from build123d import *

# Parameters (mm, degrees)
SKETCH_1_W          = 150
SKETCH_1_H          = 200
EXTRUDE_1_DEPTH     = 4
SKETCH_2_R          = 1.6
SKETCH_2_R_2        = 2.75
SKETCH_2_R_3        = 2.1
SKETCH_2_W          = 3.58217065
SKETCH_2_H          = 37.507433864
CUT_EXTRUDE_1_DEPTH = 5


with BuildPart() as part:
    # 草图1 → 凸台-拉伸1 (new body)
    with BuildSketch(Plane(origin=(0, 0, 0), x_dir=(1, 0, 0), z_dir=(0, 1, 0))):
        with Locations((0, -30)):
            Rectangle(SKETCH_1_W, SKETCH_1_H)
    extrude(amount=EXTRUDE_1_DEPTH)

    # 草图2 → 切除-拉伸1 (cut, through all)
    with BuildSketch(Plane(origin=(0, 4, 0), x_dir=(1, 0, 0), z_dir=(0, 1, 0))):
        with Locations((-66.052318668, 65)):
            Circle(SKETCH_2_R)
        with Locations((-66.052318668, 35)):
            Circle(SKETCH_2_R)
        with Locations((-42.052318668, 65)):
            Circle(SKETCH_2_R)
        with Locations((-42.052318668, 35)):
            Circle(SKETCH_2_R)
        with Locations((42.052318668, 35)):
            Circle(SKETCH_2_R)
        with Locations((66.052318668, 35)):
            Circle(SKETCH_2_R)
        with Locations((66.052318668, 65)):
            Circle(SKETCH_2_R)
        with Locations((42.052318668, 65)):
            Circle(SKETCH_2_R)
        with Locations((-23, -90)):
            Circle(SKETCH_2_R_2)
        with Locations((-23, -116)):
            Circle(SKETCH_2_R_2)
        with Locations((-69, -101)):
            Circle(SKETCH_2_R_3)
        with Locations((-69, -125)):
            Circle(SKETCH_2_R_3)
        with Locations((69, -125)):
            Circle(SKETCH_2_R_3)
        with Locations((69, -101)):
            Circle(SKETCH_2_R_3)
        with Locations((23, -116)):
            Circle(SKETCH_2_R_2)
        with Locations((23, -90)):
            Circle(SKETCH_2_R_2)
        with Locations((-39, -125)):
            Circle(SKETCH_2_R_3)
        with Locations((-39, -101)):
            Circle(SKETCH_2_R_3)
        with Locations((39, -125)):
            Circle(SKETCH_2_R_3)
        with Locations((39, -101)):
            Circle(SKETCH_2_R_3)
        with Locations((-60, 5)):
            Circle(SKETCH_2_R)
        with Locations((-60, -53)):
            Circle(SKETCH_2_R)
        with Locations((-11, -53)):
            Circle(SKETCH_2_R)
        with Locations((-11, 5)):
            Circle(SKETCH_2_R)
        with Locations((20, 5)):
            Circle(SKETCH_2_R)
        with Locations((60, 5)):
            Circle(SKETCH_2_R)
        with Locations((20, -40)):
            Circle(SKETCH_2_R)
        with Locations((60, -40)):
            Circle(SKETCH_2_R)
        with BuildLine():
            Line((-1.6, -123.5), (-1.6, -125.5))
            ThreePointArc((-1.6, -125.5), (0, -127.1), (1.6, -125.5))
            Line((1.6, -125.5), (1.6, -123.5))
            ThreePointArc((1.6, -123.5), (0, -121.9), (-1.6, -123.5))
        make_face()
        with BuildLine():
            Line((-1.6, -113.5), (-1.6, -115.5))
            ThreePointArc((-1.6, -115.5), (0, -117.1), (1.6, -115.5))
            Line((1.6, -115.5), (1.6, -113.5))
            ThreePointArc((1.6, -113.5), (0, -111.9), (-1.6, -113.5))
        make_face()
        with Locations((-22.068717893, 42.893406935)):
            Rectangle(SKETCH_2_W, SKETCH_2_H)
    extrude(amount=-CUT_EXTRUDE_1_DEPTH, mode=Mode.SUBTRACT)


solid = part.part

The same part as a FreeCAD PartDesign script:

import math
import FreeCAD as App
import Part
import Sketcher

V = App.Vector


def add_polygon(sketch, points):
    """Adds a closed chain of lines whose ends are joined by coincident constraints."""
    first, n = sketch.GeometryCount, len(points)
    for a, b in zip(points, points[1:] + points[:1]):
        sketch.addGeometry(Part.LineSegment(App.Vector(*a, 0), App.Vector(*b, 0)), False)
    for i in range(n):
        sketch.addConstraint(Sketcher.Constraint("Coincident", first + i, 2, first + (i + 1) % n, 1))

doc = App.newDocument("Part")
params = doc.addObject("Spreadsheet::Sheet", "Params")
for row, (alias, value) in enumerate([
    ("sketch1_width", "150 mm"),
    ("sketch1_height", "200 mm"),
    ("pad1_length", "4 mm"),
    ("sketch2_diameter", "3.2 mm"),
    ("sketch2_diameter2", "5.5 mm"),
    ("sketch2_diameter3", "4.2 mm"),
    ("sketch2_height", "2 mm"),
], start=1):
    params.set(f"A{row}", alias)
    params.set(f"B{row}", "=" + value)
    params.setAlias(f"B{row}", alias)

body = doc.addObject("PartDesign::Body", "Body")

sketch1 = body.newObject("Sketcher::SketchObject", "Sketch")
sketch1.AttachmentSupport = (doc.getObject("XZ_Plane"), [""])
sketch1.MapMode = "FlatFace"
add_polygon(sketch1, [(-75, -70), (-75, 130), (75, 130), (75, -70)])
sketch1.addConstraint(Sketcher.Constraint("Vertical", 0))
sketch1.addConstraint(Sketcher.Constraint("Horizontal", 1))
sketch1.addConstraint(Sketcher.Constraint("Vertical", 2))
sketch1.addConstraint(Sketcher.Constraint("Horizontal", 3))
sketch1.addConstraint(Sketcher.Constraint("DistanceX", 1, 1, 1, 2, 150.0))
sketch1.addConstraint(Sketcher.Constraint("DistanceY", 0, 1, 0, 2, 200.0))
sketch1.addConstraint(Sketcher.Constraint("DistanceX", 0, 2, -1, 1, 75.0))
sketch1.addConstraint(Sketcher.Constraint("DistanceY", -1, 1, 0, 2, 130.0))
sketch1.setExpression("Constraints[8]", "Params.sketch1_width")
sketch1.setExpression("Constraints[9]", "Params.sketch1_height")
pad1 = body.newObject("PartDesign::Pad", "Pad")
pad1.Profile = sketch1
pad1.setExpression("Length", "Params.pad1_length")
pad1.Reversed = True

sketch2 = body.newObject("Sketcher::SketchObject", "Sketch001")
sketch2.AttachmentSupport = (doc.getObject("XZ_Plane"), [""])
sketch2.MapMode = "FlatFace"
sketch2.AttachmentOffset = App.Placement(V(0, 0, -4), App.Rotation())
sketch2.addGeometry(Part.Circle(V(-66.052319, -65, 0), V(0, 0, 1), 1.6), False)
sketch2.addGeometry(Part.Circle(V(-66.052319, -35, 0), V(0, 0, 1), 1.6), False)
sketch2.addGeometry(Part.Circle(V(-42.052319, -65, 0), V(0, 0, 1), 1.6), False)
sketch2.addGeometry(Part.Circle(V(-42.052319, -35, 0), V(0, 0, 1), 1.6), False)
sketch2.addGeometry(Part.Circle(V(42.052319, -35, 0), V(0, 0, 1), 1.6), False)
sketch2.addGeometry(Part.Circle(V(66.052319, -35, 0), V(0, 0, 1), 1.6), False)
sketch2.addGeometry(Part.Circle(V(66.052319, -65, 0), V(0, 0, 1), 1.6), False)
sketch2.addGeometry(Part.Circle(V(42.052319, -65, 0), V(0, 0, 1), 1.6), False)
sketch2.addGeometry(Part.Circle(V(-23, 90, 0), V(0, 0, 1), 2.75), False)
sketch2.addGeometry(Part.Circle(V(-23, 116, 0), V(0, 0, 1), 2.75), False)
sketch2.addGeometry(Part.Circle(V(-69, 101, 0), V(0, 0, 1), 2.1), False)
sketch2.addGeometry(Part.Circle(V(-69, 125, 0), V(0, 0, 1), 2.1), False)
sketch2.addGeometry(Part.Circle(V(69, 125, 0), V(0, 0, 1), 2.1), False)
sketch2.addGeometry(Part.Circle(V(69, 101, 0), V(0, 0, 1), 2.1), False)
sketch2.addGeometry(Part.Circle(V(23, 116, 0), V(0, 0, 1), 2.75), False)
sketch2.addGeometry(Part.Circle(V(23, 90, 0), V(0, 0, 1), 2.75), False)
sketch2.addGeometry(Part.Circle(V(-39, 125, 0), V(0, 0, 1), 2.1), False)
sketch2.addGeometry(Part.Circle(V(-39, 101, 0), V(0, 0, 1), 2.1), False)
sketch2.addGeometry(Part.Circle(V(39, 125, 0), V(0, 0, 1), 2.1), False)
sketch2.addGeometry(Part.Circle(V(39, 101, 0), V(0, 0, 1), 2.1), False)
sketch2.addGeometry(Part.Circle(V(-60, -5, 0), V(0, 0, 1), 1.6), False)
sketch2.addGeometry(Part.Circle(V(-60, 53, 0), V(0, 0, 1), 1.6), False)
sketch2.addGeometry(Part.Circle(V(-11, 53, 0), V(0, 0, 1), 1.6), False)
sketch2.addGeometry(Part.Circle(V(-11, -5, 0), V(0, 0, 1), 1.6), False)
sketch2.addGeometry(Part.Circle(V(20, -5, 0), V(0, 0, 1), 1.6), False)
sketch2.addGeometry(Part.Circle(V(60, -5, 0), V(0, 0, 1), 1.6), False)
sketch2.addGeometry(Part.Circle(V(20, 40, 0), V(0, 0, 1), 1.6), False)
sketch2.addGeometry(Part.Circle(V(60, 40, 0), V(0, 0, 1), 1.6), False)
sketch2.addGeometry(Part.LineSegment(V(-1.6, 123.5, 0), V(-1.6, 125.5, 0)), False)
sketch2.addGeometry(Part.ArcOfCircle(Part.Circle(V(0, 125.5, 0), V(0, 0, 1), 1.6), math.radians(0), math.radians(180)), False)
sketch2.addGeometry(Part.LineSegment(V(1.6, 125.5, 0), V(1.6, 123.5, 0)), False)
sketch2.addGeometry(Part.ArcOfCircle(Part.Circle(V(0, 123.5, 0), V(0, 0, 1), 1.6), math.radians(180), math.radians(360)), False)
sketch2.addGeometry(Part.LineSegment(V(-1.6, 113.5, 0), V(-1.6, 115.5, 0)), False)
sketch2.addGeometry(Part.ArcOfCircle(Part.Circle(V(0, 115.5, 0), V(0, 0, 1), 1.6), math.radians(0), math.radians(180)), False)
sketch2.addGeometry(Part.LineSegment(V(1.6, 115.5, 0), V(1.6, 113.5, 0)), False)
sketch2.addGeometry(Part.ArcOfCircle(Part.Circle(V(0, 113.5, 0), V(0, 0, 1), 1.6), math.radians(180), math.radians(360)), False)
add_polygon(sketch2, [(-23.859803, -61.647124), (-23.859803, -24.13969), (-20.277633, -24.13969), (-20.277633, -61.647124)])
sketch2.addConstraint(Sketcher.Constraint("Tangent", 28, 2, 29, 2))
sketch2.addConstraint(Sketcher.Constraint("Tangent", 29, 1, 30, 1))
sketch2.addConstraint(Sketcher.Constraint("Tangent", 30, 2, 31, 2))
sketch2.addConstraint(Sketcher.Constraint("Tangent", 31, 1, 28, 1))
sketch2.addConstraint(Sketcher.Constraint("Tangent", 32, 2, 33, 2))
sketch2.addConstraint(Sketcher.Constraint("Tangent", 33, 1, 34, 1))
sketch2.addConstraint(Sketcher.Constraint("Tangent", 34, 2, 35, 2))
sketch2.addConstraint(Sketcher.Constraint("Tangent", 35, 1, 32, 1))
sketch2.addConstraint(Sketcher.Constraint("Vertical", 28))
sketch2.addConstraint(Sketcher.Constraint("Vertical", 30))
sketch2.addConstraint(Sketcher.Constraint("Vertical", 32))
sketch2.addConstraint(Sketcher.Constraint("Vertical", 34))
sketch2.addConstraint(Sketcher.Constraint("Vertical", 36))
sketch2.addConstraint(Sketcher.Constraint("Horizontal", 37))
sketch2.addConstraint(Sketcher.Constraint("Vertical", 38))
sketch2.addConstraint(Sketcher.Constraint("Horizontal", 39))
sketch2.addConstraint(Sketcher.Constraint("Equal", 0, 1))
sketch2.addConstraint(Sketcher.Constraint("Equal", 1, 2))
sketch2.addConstraint(Sketcher.Constraint("Equal", 2, 3))
sketch2.addConstraint(Sketcher.Constraint("Equal", 3, 4))
sketch2.addConstraint(Sketcher.Constraint("Equal", 4, 5))
sketch2.addConstraint(Sketcher.Constraint("Equal", 5, 6))
sketch2.addConstraint(Sketcher.Constraint("Equal", 6, 7))
sketch2.addConstraint(Sketcher.Constraint("Equal", 8, 9))
sketch2.addConstraint(Sketcher.Constraint("Equal", 10, 11))
sketch2.addConstraint(Sketcher.Constraint("Equal", 11, 12))
sketch2.addConstraint(Sketcher.Constraint("Equal", 12, 13))
sketch2.addConstraint(Sketcher.Constraint("Equal", 9, 14))
sketch2.addConstraint(Sketcher.Constraint("Equal", 14, 15))
sketch2.addConstraint(Sketcher.Constraint("Equal", 13, 16))
sketch2.addConstraint(Sketcher.Constraint("Equal", 16, 17))
sketch2.addConstraint(Sketcher.Constraint("Equal", 17, 18))
sketch2.addConstraint(Sketcher.Constraint("Equal", 18, 19))
sketch2.addConstraint(Sketcher.Constraint("Equal", 7, 20))
sketch2.addConstraint(Sketcher.Constraint("Equal", 20, 21))
sketch2.addConstraint(Sketcher.Constraint("Equal", 21, 22))
sketch2.addConstraint(Sketcher.Constraint("Equal", 22, 23))
sketch2.addConstraint(Sketcher.Constraint("Equal", 23, 24))
sketch2.addConstraint(Sketcher.Constraint("Equal", 24, 25))
sketch2.addConstraint(Sketcher.Constraint("Equal", 25, 26))
sketch2.addConstraint(Sketcher.Constraint("Equal", 26, 27))
sketch2.addConstraint(Sketcher.Constraint("Equal", 27, 29))
sketch2.addConstraint(Sketcher.Constraint("Equal", 31, 33))
sketch2.addConstraint(Sketcher.Constraint("Symmetric", 3, 3, 4, 3, -2))
sketch2.addConstraint(Sketcher.Constraint("Symmetric", 1, 3, 5, 3, -2))
sketch2.addConstraint(Sketcher.Constraint("Symmetric", 0, 3, 6, 3, -2))
sketch2.addConstraint(Sketcher.Constraint("Symmetric", 2, 3, 7, 3, -2))
sketch2.addConstraint(Sketcher.Constraint("Symmetric", 11, 3, 12, 3, -2))
sketch2.addConstraint(Sketcher.Constraint("Symmetric", 10, 3, 13, 3, -2))
sketch2.addConstraint(Sketcher.Constraint("Symmetric", 9, 3, 14, 3, -2))
sketch2.addConstraint(Sketcher.Constraint("Symmetric", 8, 3, 15, 3, -2))
sketch2.addConstraint(Sketcher.Constraint("Symmetric", 16, 3, 18, 3, -2))
sketch2.addConstraint(Sketcher.Constraint("Symmetric", 17, 3, 19, 3, -2))
sketch2.addConstraint(Sketcher.Constraint("Symmetric", 20, 3, 25, 3, -2))
sketch2.addConstraint(Sketcher.Constraint("PointOnObject", 29, 3, -2))
sketch2.addConstraint(Sketcher.Constraint("PointOnObject", 33, 3, -2))
sketch2.addConstraint(Sketcher.Constraint("Horizontal", 0, 3, 2, 3))
sketch2.addConstraint(Sketcher.Constraint("Horizontal", 1, 3, 3, 3))
sketch2.addConstraint(Sketcher.Constraint("Horizontal", 12, 3, 16, 3))
sketch2.addConstraint(Sketcher.Constraint("Horizontal", 13, 3, 17, 3))
sketch2.addConstraint(Sketcher.Constraint("Horizontal", 21, 3, 22, 3))
sketch2.addConstraint(Sketcher.Constraint("Horizontal", 20, 3, 23, 3))
sketch2.addConstraint(Sketcher.Constraint("Horizontal", 23, 3, 24, 3))
sketch2.addConstraint(Sketcher.Constraint("Horizontal", 26, 3, 27, 3))
sketch2.addConstraint(Sketcher.Constraint("Vertical", 0, 3, 1, 3))
sketch2.addConstraint(Sketcher.Constraint("Vertical", 2, 3, 3, 3))
sketch2.addConstraint(Sketcher.Constraint("Vertical", 8, 3, 9, 3))
sketch2.addConstraint(Sketcher.Constraint("Vertical", 10, 3, 11, 3))
sketch2.addConstraint(Sketcher.Constraint("Vertical", 16, 3, 17, 3))
sketch2.addConstraint(Sketcher.Constraint("Vertical", 20, 3, 21, 3))
sketch2.addConstraint(Sketcher.Constraint("Vertical", 22, 3, 23, 3))
sketch2.addConstraint(Sketcher.Constraint("Vertical", 24, 3, 26, 3))
sketch2.addConstraint(Sketcher.Constraint("Vertical", 25, 3, 27, 3))
sketch2.addConstraint(Sketcher.Constraint("Equal", 30, 32))
sketch2.addConstraint(Sketcher.Constraint("Diameter", 0, 3.2))
sketch2.addConstraint(Sketcher.Constraint("Diameter", 8, 5.5))
sketch2.addConstraint(Sketcher.Constraint("Diameter", 10, 4.2))
sketch2.addConstraint(Sketcher.Constraint("DistanceY", 28, 1, 28, 2, 2.0))
sketch2.addConstraint(Sketcher.Constraint("DistanceY", 0, 3, -1, 1, 65.0))
sketch2.addConstraint(Sketcher.Constraint("DistanceY", 1, 3, -1, 1, 35.0))
sketch2.addConstraint(Sketcher.Constraint("DistanceX", 8, 3, -1, 1, 23.0))
sketch2.addConstraint(Sketcher.Constraint("DistanceY", -1, 1, 8, 3, 90.0))
sketch2.addConstraint(Sketcher.Constraint("DistanceY", -1, 1, 9, 3, 116.0))
sketch2.addConstraint(Sketcher.Constraint("DistanceX", 10, 3, -1, 1, 69.0))
sketch2.addConstraint(Sketcher.Constraint("DistanceY", -1, 1, 10, 3, 101.0))
sketch2.addConstraint(Sketcher.Constraint("DistanceY", -1, 1, 11, 3, 125.0))
sketch2.addConstraint(Sketcher.Constraint("DistanceX", 16, 3, -1, 1, 39.0))
sketch2.addConstraint(Sketcher.Constraint("DistanceX", 20, 3, -1, 1, 60.0))
sketch2.addConstraint(Sketcher.Constraint("DistanceY", 20, 3, -1, 1, 5.0))
sketch2.addConstraint(Sketcher.Constraint("DistanceY", -1, 1, 21, 3, 53.0))
sketch2.addConstraint(Sketcher.Constraint("DistanceX", 22, 3, -1, 1, 11.0))
sketch2.addConstraint(Sketcher.Constraint("DistanceX", -1, 1, 24, 3, 20.0))
sketch2.addConstraint(Sketcher.Constraint("DistanceY", -1, 1, 26, 3, 40.0))
sketch2.addConstraint(Sketcher.Constraint("DistanceX", 0, 3, 2, 3, 24.0))
sketch2.addConstraint(Sketcher.Constraint("DistanceY", 33, 3, 31, 3, 8.0))
sketch2.addConstraint(Sketcher.Constraint("DistanceY", -1, 1, 29, 3, 125.5))
sketch2.addConstraint(Sketcher.Constraint("DistanceX", 37, 1, 37, 2, 3.582171))
sketch2.addConstraint(Sketcher.Constraint("DistanceY", 36, 1, 36, 2, 37.507434))
sketch2.addConstraint(Sketcher.Constraint("DistanceX", 0, 3, -1, 1, 66.052319))
sketch2.addConstraint(Sketcher.Constraint("DistanceY", 36, 2, -1, 1, 24.13969))
sketch2.addConstraint(Sketcher.Constraint("DistanceX", 36, 2, -1, 1, 23.859803))
sketch2.setExpression("Constraints[78]", "Params.sketch2_diameter")
sketch2.setExpression("Constraints[79]", "Params.sketch2_diameter2")
sketch2.setExpression("Constraints[80]", "Params.sketch2_diameter3")
sketch2.setExpression("Constraints[81]", "Params.sketch2_height")
pocket1 = body.newObject("PartDesign::Pocket", "Pocket")
pocket1.Profile = sketch2
pocket1.Type = "ThroughAll"
pocket1.Reversed = True

doc.recompute()
